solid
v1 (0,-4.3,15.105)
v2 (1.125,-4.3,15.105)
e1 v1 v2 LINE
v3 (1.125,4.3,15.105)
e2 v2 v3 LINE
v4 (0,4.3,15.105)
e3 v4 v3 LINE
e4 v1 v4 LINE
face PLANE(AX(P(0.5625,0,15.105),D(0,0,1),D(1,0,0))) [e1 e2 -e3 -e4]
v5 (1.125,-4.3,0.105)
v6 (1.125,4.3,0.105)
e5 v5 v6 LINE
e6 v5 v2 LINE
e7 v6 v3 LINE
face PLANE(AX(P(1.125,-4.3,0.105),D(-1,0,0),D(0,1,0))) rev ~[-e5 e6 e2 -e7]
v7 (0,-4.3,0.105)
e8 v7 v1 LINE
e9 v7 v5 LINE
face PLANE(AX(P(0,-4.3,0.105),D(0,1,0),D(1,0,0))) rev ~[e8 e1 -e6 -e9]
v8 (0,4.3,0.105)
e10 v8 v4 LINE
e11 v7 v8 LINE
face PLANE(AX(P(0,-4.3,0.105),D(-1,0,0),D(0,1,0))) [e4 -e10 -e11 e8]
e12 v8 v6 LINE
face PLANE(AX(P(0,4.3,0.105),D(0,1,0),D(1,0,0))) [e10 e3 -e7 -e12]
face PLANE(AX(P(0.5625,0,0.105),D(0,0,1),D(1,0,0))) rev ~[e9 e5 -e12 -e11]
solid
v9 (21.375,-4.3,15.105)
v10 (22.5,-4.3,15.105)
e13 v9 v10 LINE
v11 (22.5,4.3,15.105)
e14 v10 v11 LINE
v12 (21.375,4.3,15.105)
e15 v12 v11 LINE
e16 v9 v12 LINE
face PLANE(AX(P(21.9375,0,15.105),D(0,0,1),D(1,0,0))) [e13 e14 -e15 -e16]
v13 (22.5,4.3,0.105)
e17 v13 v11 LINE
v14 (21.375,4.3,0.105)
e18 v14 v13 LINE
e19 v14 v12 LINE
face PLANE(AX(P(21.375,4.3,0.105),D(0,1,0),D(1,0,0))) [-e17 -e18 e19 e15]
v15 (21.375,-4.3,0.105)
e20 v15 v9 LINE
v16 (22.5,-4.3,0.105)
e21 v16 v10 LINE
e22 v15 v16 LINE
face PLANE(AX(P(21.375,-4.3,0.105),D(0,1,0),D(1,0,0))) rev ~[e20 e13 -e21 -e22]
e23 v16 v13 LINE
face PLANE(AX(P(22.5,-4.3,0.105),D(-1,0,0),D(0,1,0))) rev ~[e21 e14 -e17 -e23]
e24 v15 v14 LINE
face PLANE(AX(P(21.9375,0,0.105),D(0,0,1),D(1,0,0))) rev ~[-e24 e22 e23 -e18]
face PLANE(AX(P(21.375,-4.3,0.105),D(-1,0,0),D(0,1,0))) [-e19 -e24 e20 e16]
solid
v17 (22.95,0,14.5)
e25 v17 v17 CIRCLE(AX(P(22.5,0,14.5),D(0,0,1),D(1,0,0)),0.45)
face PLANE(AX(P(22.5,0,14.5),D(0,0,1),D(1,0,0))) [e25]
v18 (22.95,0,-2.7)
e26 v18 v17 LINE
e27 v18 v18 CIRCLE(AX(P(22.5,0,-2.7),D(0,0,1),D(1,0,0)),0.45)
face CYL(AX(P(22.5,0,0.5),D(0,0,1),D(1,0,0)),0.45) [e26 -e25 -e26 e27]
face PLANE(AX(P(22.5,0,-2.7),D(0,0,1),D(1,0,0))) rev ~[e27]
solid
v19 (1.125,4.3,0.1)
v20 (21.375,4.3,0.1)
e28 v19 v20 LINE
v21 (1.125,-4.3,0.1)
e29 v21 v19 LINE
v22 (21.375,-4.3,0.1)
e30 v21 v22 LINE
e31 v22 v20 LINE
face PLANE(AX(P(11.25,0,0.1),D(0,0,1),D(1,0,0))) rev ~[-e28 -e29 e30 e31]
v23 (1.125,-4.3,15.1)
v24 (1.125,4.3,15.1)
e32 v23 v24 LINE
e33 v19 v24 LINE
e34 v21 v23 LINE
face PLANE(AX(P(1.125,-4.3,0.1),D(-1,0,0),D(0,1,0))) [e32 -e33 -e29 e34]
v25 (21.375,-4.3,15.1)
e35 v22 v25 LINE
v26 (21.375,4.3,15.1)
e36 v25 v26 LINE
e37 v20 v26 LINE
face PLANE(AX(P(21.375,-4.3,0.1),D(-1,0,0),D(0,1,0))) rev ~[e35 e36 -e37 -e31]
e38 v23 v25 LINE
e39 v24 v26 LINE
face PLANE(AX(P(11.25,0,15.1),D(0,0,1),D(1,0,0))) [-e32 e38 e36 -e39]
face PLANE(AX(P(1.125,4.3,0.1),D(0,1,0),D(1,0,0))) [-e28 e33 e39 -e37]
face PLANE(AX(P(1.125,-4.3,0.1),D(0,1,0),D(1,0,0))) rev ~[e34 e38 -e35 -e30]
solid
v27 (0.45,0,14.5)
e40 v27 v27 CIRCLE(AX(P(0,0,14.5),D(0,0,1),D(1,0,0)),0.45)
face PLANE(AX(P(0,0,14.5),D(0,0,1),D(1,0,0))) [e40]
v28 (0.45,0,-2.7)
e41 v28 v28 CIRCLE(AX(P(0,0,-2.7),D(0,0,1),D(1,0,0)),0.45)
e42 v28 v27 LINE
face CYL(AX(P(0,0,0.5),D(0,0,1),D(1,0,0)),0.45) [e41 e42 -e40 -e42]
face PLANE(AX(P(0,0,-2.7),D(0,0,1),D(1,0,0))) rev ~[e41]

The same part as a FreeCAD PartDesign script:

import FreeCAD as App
import Part
import Sketcher
from FreeCAD import Vector


def add_polygon(sketch, points):
    """Adds a closed chain of lines whose ends are joined by coincident constraints."""
    first, n = sketch.GeometryCount, len(points)
    for a, b in zip(points, points[1:] + points[:1]):
        sketch.addGeometry(Part.LineSegment(App.Vector(*a, 0), App.Vector(*b, 0)), False)
    for i in range(n):
        sketch.addConstraint(Sketcher.Constraint("Coincident", first + i, 2, first + (i + 1) % n, 1))

doc = App.newDocument("Part")
body = doc.addObject("PartDesign::Body", "Body")

# Sketch on XY plane
sketch1 = body.newObject("Sketcher::SketchObject", "Sketch")
sketch1.AttachmentSupport = (doc.getObject("XY_Plane"), [""])
sketch1.MapMode = "FlatFace"
sketch1.AttachmentOffset = App.Placement(Vector(0, 0, 0.1), App.Rotation())
add_polygon(sketch1, [(1, 4), (1, -4), (21, -4), (21, 4)])  # lines 0-3
sketch1.addConstraint(Sketcher.Constraint("Vertical", 0))
sketch1.addConstraint(Sketcher.Constraint("Horizontal", 1))
sketch1.addConstraint(Sketcher.Constraint("Vertical", 2))
sketch1.addConstraint(Sketcher.Constraint("Horizontal", 3))
sketch1.addConstraint(Sketcher.Constraint("DistanceY", 0, 2, 0, 1, 8.6))
sketch1.addConstraint(Sketcher.Constraint("DistanceX", 1, 1, 1, 2, 20.25))
sketch1.addConstraint(Sketcher.Constraint("DistanceY", 0, 2, -1, 1, 4.3))
sketch1.addConstraint(Sketcher.Constraint("DistanceX", -1, 1, 0, 2, 1.125))
pad1 = body.newObject("PartDesign::Pad", "Pad")
pad1.Profile = sketch1
pad1.Length = 15
body2 = doc.addObject("PartDesign::Body", "Body001")
body2.AllowCompound = True

# Sketch on XY plane
sketch2 = body2.newObject("Sketcher::SketchObject", "Sketch001")
sketch2.AttachmentSupport = (doc.getObject("XY_Plane001"), [""])
sketch2.MapMode = "FlatFace"
sketch2.AttachmentOffset = App.Placement(Vector(0, 0, 0.5), App.Rotation())
sketch2.addGeometry(Part.Circle(Vector(0, 0, 0), Vector(0, 0, 1), 0.45), False)
sketch2.addGeometry(Part.Circle(Vector(22.5, 0, 0), Vector(0, 0, 1), 0.45), False)
sketch2.addConstraint(Sketcher.Constraint("Coincident", 0, 3, -1, 1))
sketch2.addConstraint(Sketcher.Constraint("Equal", 0, 1))
sketch2.addConstraint(Sketcher.Constraint("PointOnObject", 1, 3, -1))
sketch2.addConstraint(Sketcher.Constraint("Diameter", 0, 0.9))
sketch2.addConstraint(Sketcher.Constraint("DistanceX", -1, 1, 1, 3, 22.5))
pad2 = body2.newObject("PartDesign::Pad", "Pad001")
pad2.Profile = sketch2
pad2.Type = "TwoLengths"
pad2.Length = 14
pad2.Length2 = 3.2
body3 = doc.addObject("PartDesign::Body", "Body002")
body3.AllowCompound = True

# Sketch on XY plane
sketch3 = body3.newObject("Sketcher::SketchObject", "Sketch002")
sketch3.AttachmentSupport = (doc.getObject("XY_Plane002"), [""])
sketch3.MapMode = "FlatFace"
sketch3.AttachmentOffset = App.Placement(Vector(0, 0, 0.105), App.Rotation())
add_polygon(sketch3, [(0, 4.3), (0, -4.3), (1.1, -4.3), (1.1, 4.3)])  # lines 0-3
add_polygon(sketch3, [(21.4, 4.3), (21.4, -4.3), (22.5, -4.3), (22.5, 4.3)])  # lines 4-7
sketch3.addConstraint(Sketcher.Constraint("Vertical", 0))
sketch3.addConstraint(Sketcher.Constraint("Horizontal", 1))
sketch3.addConstraint(Sketcher.Constraint("Vertical", 2))
sketch3.addConstraint(Sketcher.Constraint("Horizontal", 3))
sketch3.addConstraint(Sketcher.Constraint("Vertical", 4))
sketch3.addConstraint(Sketcher.Constraint("Horizontal", 5))
sketch3.addConstraint(Sketcher.Constraint("Vertical", 6))
sketch3.addConstraint(Sketcher.Constraint("Horizontal", 7))
sketch3.addConstraint(Sketcher.Constraint("Symmetric", 0, 2, 3, 2, -1, 1))
sketch3.addConstraint(Sketcher.Constraint("Horizontal", 1, 2, 4, 2))
sketch3.addConstraint(Sketcher.Constraint("Horizontal", 3, 2, 6, 2))
sketch3.addConstraint(Sketcher.Constraint("Equal", 3, 5))
sketch3.addConstraint(Sketcher.Constraint("DistanceY", 0, 2, 0, 1, 8.6))
sketch3.addConstraint(Sketcher.Constraint("DistanceX", -1, 1, 5, 2, 22.5))
sketch3.addConstraint(Sketcher.Constraint("DistanceX", 1, 1, 1, 2, 1.125))
pad3 = body3.newObject("PartDesign::Pad", "Pad002")
pad3.Profile = sketch3
pad3.Length = 15

doc.recompute()
